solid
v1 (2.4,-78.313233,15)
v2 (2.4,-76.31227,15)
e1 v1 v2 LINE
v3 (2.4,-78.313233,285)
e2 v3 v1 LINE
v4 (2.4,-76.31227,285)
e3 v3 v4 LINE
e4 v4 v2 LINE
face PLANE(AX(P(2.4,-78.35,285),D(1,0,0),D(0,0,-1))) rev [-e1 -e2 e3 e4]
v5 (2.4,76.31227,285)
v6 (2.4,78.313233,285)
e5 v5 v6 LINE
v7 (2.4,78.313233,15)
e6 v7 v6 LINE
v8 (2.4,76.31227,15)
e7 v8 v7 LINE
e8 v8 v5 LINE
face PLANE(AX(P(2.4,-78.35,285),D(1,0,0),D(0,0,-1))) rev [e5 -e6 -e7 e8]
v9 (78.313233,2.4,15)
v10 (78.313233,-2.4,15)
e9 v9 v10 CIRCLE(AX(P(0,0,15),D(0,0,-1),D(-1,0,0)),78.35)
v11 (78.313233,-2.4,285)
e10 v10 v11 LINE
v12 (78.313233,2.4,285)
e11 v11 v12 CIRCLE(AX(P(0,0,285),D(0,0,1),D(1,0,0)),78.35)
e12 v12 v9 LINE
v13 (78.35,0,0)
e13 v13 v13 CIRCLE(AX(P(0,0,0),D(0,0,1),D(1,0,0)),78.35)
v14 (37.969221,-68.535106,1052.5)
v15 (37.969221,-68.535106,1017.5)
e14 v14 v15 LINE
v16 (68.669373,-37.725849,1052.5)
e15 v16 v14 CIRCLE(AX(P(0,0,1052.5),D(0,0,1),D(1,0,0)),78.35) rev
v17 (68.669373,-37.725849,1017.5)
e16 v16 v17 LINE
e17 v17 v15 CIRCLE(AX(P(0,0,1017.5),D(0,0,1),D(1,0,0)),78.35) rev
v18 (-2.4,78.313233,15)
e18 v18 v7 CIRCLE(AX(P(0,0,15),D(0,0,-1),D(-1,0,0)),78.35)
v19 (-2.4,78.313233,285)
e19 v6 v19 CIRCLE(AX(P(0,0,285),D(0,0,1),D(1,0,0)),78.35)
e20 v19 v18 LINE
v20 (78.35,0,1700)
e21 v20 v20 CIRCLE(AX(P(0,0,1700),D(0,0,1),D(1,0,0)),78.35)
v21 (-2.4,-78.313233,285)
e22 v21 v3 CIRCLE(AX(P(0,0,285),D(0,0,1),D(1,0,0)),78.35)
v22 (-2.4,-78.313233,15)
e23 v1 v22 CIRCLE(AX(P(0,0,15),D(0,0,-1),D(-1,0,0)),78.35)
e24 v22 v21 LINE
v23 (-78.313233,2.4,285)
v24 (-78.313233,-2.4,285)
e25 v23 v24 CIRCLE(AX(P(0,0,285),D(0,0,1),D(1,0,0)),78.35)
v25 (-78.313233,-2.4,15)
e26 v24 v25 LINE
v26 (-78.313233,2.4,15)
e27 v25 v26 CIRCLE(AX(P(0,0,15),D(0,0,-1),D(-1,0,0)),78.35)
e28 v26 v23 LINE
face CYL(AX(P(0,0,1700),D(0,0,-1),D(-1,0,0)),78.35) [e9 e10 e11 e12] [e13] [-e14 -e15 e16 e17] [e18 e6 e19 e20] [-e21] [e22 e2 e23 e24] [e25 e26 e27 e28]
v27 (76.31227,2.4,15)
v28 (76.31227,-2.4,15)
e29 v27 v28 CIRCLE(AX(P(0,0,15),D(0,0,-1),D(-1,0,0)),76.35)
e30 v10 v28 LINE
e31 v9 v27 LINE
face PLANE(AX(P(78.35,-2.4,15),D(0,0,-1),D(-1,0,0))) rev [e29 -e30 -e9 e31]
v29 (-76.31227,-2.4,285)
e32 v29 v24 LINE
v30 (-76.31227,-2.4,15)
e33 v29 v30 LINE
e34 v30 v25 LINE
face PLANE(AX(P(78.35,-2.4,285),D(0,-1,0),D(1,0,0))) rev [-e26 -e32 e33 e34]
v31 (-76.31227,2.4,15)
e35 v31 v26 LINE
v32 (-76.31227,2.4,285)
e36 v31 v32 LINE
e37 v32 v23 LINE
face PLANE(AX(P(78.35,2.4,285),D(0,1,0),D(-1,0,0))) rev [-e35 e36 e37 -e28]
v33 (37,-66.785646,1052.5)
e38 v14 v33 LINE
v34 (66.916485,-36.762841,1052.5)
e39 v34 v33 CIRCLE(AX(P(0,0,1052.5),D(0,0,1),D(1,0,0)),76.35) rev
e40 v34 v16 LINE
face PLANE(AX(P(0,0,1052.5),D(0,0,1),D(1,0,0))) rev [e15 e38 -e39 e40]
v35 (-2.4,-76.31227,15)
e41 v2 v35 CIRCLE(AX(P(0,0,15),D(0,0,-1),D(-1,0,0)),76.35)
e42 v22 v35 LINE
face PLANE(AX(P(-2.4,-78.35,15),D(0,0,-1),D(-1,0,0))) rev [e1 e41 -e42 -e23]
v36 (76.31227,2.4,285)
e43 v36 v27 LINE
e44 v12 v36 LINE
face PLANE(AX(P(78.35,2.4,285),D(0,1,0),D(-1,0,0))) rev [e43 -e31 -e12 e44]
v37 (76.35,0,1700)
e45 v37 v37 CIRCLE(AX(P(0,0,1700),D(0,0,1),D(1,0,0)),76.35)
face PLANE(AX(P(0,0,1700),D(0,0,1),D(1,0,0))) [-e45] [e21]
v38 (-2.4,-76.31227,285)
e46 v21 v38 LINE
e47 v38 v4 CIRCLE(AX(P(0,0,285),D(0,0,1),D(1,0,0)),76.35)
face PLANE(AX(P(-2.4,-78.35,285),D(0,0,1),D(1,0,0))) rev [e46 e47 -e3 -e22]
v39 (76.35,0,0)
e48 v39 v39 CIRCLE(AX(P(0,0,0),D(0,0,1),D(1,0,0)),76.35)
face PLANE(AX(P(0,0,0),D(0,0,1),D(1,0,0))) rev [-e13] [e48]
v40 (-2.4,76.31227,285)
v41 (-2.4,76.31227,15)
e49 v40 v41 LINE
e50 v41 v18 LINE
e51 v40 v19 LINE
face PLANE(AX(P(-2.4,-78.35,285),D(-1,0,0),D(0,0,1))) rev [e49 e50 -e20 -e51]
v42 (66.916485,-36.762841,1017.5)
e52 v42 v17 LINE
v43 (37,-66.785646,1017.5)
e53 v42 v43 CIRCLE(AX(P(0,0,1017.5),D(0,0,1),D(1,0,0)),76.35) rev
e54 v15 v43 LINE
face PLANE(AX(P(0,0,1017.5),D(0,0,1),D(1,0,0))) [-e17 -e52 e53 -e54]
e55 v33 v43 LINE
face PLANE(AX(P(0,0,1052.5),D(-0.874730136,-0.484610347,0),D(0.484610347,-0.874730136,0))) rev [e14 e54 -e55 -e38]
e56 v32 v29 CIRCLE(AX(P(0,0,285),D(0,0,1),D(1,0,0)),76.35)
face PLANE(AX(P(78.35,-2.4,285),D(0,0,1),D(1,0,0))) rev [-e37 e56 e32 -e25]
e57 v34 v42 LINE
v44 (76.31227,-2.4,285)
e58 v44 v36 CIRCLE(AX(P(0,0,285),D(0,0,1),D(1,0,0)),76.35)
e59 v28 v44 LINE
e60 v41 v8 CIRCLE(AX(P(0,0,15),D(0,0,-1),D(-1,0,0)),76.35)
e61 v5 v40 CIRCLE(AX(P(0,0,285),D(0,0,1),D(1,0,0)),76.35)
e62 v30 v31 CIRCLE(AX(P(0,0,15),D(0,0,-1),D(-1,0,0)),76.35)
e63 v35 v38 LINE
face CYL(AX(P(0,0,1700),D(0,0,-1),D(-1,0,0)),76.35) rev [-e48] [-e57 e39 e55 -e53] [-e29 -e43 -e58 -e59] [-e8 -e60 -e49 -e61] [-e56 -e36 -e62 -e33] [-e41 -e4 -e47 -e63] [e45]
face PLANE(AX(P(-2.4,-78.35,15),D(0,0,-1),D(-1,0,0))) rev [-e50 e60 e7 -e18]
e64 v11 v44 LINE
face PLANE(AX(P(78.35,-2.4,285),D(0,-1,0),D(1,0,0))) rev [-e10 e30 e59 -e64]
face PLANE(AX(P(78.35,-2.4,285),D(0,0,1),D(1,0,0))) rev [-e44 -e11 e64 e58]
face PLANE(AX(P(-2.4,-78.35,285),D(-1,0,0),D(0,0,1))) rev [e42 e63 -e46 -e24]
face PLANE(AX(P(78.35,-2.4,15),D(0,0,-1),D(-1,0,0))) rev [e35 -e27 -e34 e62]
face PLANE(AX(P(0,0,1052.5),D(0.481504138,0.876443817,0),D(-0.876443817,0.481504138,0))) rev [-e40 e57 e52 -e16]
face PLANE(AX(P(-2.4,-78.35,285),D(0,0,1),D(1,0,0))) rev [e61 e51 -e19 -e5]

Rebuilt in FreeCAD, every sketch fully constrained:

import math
import FreeCAD as App
import Part
import Sketcher

V = App.Vector
Q = App.Units.Quantity


def add_polygon(sketch, points):
    """Adds a closed chain of lines whose ends are joined by coincident constraints."""
    first, n = sketch.GeometryCount, len(points)
    for a, b in zip(points, points[1:] + points[:1]):
        sketch.addGeometry(Part.LineSegment(App.Vector(*a, 0), App.Vector(*b, 0)), False)
    for i in range(n):
        sketch.addConstraint(Sketcher.Constraint("Coincident", first + i, 2, first + (i + 1) % n, 1))

doc = App.newDocument("Part")
body = doc.addObject("PartDesign::Body", "Body")

sketch1 = body.newObject("Sketcher::SketchObject", "Sketch")
sketch1.AttachmentSupport = (doc.getObject("XY_Plane"), [""])
sketch1.MapMode = "FlatFace"
sketch1.addGeometry([
    Part.Circle(V(0, 0, 0), V(0, 0, 1), 78),
    Part.Circle(V(0, 0, 0), V(0, 0, 1), 76),
], False)
sketch1.addConstraint([
    Sketcher.Constraint("Coincident", 0, 3, -1, 1),
    Sketcher.Constraint("Coincident", 1, 3, -1, 1),
    Sketcher.Constraint("Diameter", 0, Q("156.7 mm")),
    Sketcher.Constraint("Diameter", 1, Q("152.7 mm")),
])
pad1 = body.newObject("PartDesign::Pad", "Pad")
pad1.Profile = sketch1
pad1.Length = 1700

sketch2 = body.newObject("Sketcher::SketchObject", "Sketch001")
sketch2.Placement = App.Placement(V(0, 0, 0), App.Rotation(V(0, 0, -1), V(0.707106781, 0.707106781, 0), V(0.707106781, -0.707106781, 0), "ZXY"))
sketch2.addGeometry(Part.Circle(V(-1035, 0, 0), V(0, 0, 1), 15), False)
sketch2.addConstraint([
    Sketcher.Constraint("PointOnObject", 0, 3, -1),
    Sketcher.Constraint("Diameter", 0, Q("30 mm")),
    Sketcher.Constraint("DistanceX", 0, 3, -1, 1, Q("1034.89 mm")),
])
pocket1 = body.newObject("PartDesign::Pocket", "Pocket")
pocket1.Profile = sketch2
pocket1.Type = "ThroughAll"
pocket1.Reversed = True

sketch3 = body.newObject("Sketcher::SketchObject", "Sketch002")
sketch3.AttachmentSupport = (doc.getObject("XZ_Plane"), [""])
sketch3.MapMode = "FlatFace"
add_polygon(sketch3, [(-2.4, 15), (-2.4, 285), (2.4, 285), (2.4, 15)])
sketch3.addConstraint([
    Sketcher.Constraint("Vertical", 0),
    Sketcher.Constraint("Horizontal", 1),
    Sketcher.Constraint("Vertical", 2),
    Sketcher.Constraint("Horizontal", 3),
    Sketcher.Constraint("DistanceY", 0, 1, 0, 2, Q("270 mm")),
    Sketcher.Constraint("DistanceX", 1, 1, 1, 2, Q("4.8 mm")),
    Sketcher.Constraint("DistanceY", -1, 1, 0, 2, Q("285 mm")),
    Sketcher.Constraint("DistanceX", 0, 2, -1, 1, Q("2.4 mm")),
])
pocket2 = body.newObject("PartDesign::Pocket", "Pocket001")
pocket2.Profile = sketch3
pocket2.Length = 3409.214373
pocket2.Midplane = True
doc.recompute()

polarpattern = body.newObject("PartDesign::PolarPattern", "PolarPattern")
polarpattern.Originals = [pocket2]
polarpattern.Axis = (doc.getObject("Z_Axis"), [""])
polarpattern.Angle = 90
polarpattern.Occurrences = 2
body.Tip = polarpattern

sketch4 = body.newObject("Sketcher::SketchObject", "Sketch003")
sketch4.AttachmentSupport = (doc.getObject("XY_Plane"), [""])
sketch4.MapMode = "FlatFace"
sketch4.AttachmentOffset = App.Placement(V(0, 0, 1035), App.Rotation())
sketch4.addGeometry([
    Part.ArcOfCircle(Part.Circle(V(0, 0, 0), V(0, 0, 1), 78.3), math.radians(-30.98), math.radians(-28.78)),
    Part.LineSegment(V(68.7, -37.7, 0), V(66.9, -36.8, 0)),
    Part.ArcOfCircle(Part.Circle(V(0, 0, 0), V(0, 0, 1), 76.4), math.radians(-30.98), math.radians(-28.78)),
    Part.ArcOfCircle(Part.Circle(V(0, 0, 0), V(0, 0, 1), 76.4), math.radians(-44.9), math.radians(-30.98)),
    Part.ArcOfCircle(Part.Circle(V(0, 0, 0), V(0, 0, 1), 76.3), math.radians(-58.82), math.radians(-44.9)),
    Part.ArcOfCircle(Part.Circle(V(0, 0, 0), V(0, 0, 1), 76.3), math.radians(-61.01), math.radians(-58.82)),
    Part.LineSegment(V(37, -66.8, 0), V(38, -68.5, 0)),
    Part.ArcOfCircle(Part.Circle(V(0, 0, 0), V(0, 0, 1), 78.3), math.radians(-61.01), math.radians(-58.82)),
    Part.ArcOfCircle(Part.Circle(V(0, 0, 0), V(0, 0, 1), 78.4), math.radians(-58.82), math.radians(-44.9)),
    Part.ArcOfCircle(Part.Circle(V(0, 0, 0), V(0, 0, 1), 78.3), math.radians(-44.9), math.radians(-30.98)),
], False)
sketch4.addConstraint([
    Sketcher.Constraint("Coincident", 0, 2, 1, 1),
    Sketcher.Constraint("Coincident", 1, 2, 2, 2),
    Sketcher.Constraint("Tangent", 2, 1, 3, 2),
    Sketcher.Constraint("Tangent", 3, 1, 4, 2),
    Sketcher.Constraint("Tangent", 4, 1, 5, 2),
    Sketcher.Constraint("Coincident", 5, 1, 6, 1),
    Sketcher.Constraint("Coincident", 6, 2, 7, 1),
    Sketcher.Constraint("Tangent", 7, 2, 8, 1),
    Sketcher.Constraint("Tangent", 8, 2, 9, 1),
    Sketcher.Constraint("Tangent", 9, 2, 0, 1),
    Sketcher.Constraint("Coincident", 0, 3, -1, 1),
    Sketcher.Constraint("Coincident", 2, 3, -1, 1),
    Sketcher.Constraint("Coincident", 4, 3, -1, 1),
    Sketcher.Constraint("Coincident", 7, 3, -1, 1),
    Sketcher.Constraint("Equal", 4, 5),
    Sketcher.Constraint("Equal", 0, 7),
    Sketcher.Constraint("Radius", 0, Q("78.349999 mm")),
    Sketcher.Constraint("Radius", 3, Q("76.35 mm")),
    Sketcher.Constraint("DistanceX", -1, 1, 5, 1, Q("37 mm")),
    Sketcher.Constraint("DistanceX", -1, 1, 8, 2, Q("55.5 mm")),
    Sketcher.Constraint("DistanceY", 7, 2, -1, 1, Q("67.031302 mm")),
    Sketcher.Constraint("DistanceX", 1, 2, 9, 2, Q("0.258302 mm")),
    Sketcher.Constraint("DistanceY", 0, 2, -1, 1, Q("37.725849 mm")),
    Sketcher.Constraint("DistanceY", 1, 2, -1, 1, Q("36.762841 mm")),
    Sketcher.Constraint("DistanceX", -1, 1, 2, 1, Q("65.460051 mm")),
    Sketcher.Constraint("DistanceX", -1, 1, 3, 1, Q("54.08328 mm")),
    Sketcher.Constraint("DistanceY", 4, 1, -1, 1, Q("65.320228 mm")),
    Sketcher.Constraint("DistanceX", -1, 1, 6, 2, Q("37.969221 mm")),
])
pocket3 = body.newObject("PartDesign::Pocket", "Pocket002")
pocket3.Profile = sketch4
pocket3.Type = "TwoLengths"
pocket3.Length = 17.5
pocket3.Length2 = 17.5
pocket3.Reversed = True

doc.recompute()
